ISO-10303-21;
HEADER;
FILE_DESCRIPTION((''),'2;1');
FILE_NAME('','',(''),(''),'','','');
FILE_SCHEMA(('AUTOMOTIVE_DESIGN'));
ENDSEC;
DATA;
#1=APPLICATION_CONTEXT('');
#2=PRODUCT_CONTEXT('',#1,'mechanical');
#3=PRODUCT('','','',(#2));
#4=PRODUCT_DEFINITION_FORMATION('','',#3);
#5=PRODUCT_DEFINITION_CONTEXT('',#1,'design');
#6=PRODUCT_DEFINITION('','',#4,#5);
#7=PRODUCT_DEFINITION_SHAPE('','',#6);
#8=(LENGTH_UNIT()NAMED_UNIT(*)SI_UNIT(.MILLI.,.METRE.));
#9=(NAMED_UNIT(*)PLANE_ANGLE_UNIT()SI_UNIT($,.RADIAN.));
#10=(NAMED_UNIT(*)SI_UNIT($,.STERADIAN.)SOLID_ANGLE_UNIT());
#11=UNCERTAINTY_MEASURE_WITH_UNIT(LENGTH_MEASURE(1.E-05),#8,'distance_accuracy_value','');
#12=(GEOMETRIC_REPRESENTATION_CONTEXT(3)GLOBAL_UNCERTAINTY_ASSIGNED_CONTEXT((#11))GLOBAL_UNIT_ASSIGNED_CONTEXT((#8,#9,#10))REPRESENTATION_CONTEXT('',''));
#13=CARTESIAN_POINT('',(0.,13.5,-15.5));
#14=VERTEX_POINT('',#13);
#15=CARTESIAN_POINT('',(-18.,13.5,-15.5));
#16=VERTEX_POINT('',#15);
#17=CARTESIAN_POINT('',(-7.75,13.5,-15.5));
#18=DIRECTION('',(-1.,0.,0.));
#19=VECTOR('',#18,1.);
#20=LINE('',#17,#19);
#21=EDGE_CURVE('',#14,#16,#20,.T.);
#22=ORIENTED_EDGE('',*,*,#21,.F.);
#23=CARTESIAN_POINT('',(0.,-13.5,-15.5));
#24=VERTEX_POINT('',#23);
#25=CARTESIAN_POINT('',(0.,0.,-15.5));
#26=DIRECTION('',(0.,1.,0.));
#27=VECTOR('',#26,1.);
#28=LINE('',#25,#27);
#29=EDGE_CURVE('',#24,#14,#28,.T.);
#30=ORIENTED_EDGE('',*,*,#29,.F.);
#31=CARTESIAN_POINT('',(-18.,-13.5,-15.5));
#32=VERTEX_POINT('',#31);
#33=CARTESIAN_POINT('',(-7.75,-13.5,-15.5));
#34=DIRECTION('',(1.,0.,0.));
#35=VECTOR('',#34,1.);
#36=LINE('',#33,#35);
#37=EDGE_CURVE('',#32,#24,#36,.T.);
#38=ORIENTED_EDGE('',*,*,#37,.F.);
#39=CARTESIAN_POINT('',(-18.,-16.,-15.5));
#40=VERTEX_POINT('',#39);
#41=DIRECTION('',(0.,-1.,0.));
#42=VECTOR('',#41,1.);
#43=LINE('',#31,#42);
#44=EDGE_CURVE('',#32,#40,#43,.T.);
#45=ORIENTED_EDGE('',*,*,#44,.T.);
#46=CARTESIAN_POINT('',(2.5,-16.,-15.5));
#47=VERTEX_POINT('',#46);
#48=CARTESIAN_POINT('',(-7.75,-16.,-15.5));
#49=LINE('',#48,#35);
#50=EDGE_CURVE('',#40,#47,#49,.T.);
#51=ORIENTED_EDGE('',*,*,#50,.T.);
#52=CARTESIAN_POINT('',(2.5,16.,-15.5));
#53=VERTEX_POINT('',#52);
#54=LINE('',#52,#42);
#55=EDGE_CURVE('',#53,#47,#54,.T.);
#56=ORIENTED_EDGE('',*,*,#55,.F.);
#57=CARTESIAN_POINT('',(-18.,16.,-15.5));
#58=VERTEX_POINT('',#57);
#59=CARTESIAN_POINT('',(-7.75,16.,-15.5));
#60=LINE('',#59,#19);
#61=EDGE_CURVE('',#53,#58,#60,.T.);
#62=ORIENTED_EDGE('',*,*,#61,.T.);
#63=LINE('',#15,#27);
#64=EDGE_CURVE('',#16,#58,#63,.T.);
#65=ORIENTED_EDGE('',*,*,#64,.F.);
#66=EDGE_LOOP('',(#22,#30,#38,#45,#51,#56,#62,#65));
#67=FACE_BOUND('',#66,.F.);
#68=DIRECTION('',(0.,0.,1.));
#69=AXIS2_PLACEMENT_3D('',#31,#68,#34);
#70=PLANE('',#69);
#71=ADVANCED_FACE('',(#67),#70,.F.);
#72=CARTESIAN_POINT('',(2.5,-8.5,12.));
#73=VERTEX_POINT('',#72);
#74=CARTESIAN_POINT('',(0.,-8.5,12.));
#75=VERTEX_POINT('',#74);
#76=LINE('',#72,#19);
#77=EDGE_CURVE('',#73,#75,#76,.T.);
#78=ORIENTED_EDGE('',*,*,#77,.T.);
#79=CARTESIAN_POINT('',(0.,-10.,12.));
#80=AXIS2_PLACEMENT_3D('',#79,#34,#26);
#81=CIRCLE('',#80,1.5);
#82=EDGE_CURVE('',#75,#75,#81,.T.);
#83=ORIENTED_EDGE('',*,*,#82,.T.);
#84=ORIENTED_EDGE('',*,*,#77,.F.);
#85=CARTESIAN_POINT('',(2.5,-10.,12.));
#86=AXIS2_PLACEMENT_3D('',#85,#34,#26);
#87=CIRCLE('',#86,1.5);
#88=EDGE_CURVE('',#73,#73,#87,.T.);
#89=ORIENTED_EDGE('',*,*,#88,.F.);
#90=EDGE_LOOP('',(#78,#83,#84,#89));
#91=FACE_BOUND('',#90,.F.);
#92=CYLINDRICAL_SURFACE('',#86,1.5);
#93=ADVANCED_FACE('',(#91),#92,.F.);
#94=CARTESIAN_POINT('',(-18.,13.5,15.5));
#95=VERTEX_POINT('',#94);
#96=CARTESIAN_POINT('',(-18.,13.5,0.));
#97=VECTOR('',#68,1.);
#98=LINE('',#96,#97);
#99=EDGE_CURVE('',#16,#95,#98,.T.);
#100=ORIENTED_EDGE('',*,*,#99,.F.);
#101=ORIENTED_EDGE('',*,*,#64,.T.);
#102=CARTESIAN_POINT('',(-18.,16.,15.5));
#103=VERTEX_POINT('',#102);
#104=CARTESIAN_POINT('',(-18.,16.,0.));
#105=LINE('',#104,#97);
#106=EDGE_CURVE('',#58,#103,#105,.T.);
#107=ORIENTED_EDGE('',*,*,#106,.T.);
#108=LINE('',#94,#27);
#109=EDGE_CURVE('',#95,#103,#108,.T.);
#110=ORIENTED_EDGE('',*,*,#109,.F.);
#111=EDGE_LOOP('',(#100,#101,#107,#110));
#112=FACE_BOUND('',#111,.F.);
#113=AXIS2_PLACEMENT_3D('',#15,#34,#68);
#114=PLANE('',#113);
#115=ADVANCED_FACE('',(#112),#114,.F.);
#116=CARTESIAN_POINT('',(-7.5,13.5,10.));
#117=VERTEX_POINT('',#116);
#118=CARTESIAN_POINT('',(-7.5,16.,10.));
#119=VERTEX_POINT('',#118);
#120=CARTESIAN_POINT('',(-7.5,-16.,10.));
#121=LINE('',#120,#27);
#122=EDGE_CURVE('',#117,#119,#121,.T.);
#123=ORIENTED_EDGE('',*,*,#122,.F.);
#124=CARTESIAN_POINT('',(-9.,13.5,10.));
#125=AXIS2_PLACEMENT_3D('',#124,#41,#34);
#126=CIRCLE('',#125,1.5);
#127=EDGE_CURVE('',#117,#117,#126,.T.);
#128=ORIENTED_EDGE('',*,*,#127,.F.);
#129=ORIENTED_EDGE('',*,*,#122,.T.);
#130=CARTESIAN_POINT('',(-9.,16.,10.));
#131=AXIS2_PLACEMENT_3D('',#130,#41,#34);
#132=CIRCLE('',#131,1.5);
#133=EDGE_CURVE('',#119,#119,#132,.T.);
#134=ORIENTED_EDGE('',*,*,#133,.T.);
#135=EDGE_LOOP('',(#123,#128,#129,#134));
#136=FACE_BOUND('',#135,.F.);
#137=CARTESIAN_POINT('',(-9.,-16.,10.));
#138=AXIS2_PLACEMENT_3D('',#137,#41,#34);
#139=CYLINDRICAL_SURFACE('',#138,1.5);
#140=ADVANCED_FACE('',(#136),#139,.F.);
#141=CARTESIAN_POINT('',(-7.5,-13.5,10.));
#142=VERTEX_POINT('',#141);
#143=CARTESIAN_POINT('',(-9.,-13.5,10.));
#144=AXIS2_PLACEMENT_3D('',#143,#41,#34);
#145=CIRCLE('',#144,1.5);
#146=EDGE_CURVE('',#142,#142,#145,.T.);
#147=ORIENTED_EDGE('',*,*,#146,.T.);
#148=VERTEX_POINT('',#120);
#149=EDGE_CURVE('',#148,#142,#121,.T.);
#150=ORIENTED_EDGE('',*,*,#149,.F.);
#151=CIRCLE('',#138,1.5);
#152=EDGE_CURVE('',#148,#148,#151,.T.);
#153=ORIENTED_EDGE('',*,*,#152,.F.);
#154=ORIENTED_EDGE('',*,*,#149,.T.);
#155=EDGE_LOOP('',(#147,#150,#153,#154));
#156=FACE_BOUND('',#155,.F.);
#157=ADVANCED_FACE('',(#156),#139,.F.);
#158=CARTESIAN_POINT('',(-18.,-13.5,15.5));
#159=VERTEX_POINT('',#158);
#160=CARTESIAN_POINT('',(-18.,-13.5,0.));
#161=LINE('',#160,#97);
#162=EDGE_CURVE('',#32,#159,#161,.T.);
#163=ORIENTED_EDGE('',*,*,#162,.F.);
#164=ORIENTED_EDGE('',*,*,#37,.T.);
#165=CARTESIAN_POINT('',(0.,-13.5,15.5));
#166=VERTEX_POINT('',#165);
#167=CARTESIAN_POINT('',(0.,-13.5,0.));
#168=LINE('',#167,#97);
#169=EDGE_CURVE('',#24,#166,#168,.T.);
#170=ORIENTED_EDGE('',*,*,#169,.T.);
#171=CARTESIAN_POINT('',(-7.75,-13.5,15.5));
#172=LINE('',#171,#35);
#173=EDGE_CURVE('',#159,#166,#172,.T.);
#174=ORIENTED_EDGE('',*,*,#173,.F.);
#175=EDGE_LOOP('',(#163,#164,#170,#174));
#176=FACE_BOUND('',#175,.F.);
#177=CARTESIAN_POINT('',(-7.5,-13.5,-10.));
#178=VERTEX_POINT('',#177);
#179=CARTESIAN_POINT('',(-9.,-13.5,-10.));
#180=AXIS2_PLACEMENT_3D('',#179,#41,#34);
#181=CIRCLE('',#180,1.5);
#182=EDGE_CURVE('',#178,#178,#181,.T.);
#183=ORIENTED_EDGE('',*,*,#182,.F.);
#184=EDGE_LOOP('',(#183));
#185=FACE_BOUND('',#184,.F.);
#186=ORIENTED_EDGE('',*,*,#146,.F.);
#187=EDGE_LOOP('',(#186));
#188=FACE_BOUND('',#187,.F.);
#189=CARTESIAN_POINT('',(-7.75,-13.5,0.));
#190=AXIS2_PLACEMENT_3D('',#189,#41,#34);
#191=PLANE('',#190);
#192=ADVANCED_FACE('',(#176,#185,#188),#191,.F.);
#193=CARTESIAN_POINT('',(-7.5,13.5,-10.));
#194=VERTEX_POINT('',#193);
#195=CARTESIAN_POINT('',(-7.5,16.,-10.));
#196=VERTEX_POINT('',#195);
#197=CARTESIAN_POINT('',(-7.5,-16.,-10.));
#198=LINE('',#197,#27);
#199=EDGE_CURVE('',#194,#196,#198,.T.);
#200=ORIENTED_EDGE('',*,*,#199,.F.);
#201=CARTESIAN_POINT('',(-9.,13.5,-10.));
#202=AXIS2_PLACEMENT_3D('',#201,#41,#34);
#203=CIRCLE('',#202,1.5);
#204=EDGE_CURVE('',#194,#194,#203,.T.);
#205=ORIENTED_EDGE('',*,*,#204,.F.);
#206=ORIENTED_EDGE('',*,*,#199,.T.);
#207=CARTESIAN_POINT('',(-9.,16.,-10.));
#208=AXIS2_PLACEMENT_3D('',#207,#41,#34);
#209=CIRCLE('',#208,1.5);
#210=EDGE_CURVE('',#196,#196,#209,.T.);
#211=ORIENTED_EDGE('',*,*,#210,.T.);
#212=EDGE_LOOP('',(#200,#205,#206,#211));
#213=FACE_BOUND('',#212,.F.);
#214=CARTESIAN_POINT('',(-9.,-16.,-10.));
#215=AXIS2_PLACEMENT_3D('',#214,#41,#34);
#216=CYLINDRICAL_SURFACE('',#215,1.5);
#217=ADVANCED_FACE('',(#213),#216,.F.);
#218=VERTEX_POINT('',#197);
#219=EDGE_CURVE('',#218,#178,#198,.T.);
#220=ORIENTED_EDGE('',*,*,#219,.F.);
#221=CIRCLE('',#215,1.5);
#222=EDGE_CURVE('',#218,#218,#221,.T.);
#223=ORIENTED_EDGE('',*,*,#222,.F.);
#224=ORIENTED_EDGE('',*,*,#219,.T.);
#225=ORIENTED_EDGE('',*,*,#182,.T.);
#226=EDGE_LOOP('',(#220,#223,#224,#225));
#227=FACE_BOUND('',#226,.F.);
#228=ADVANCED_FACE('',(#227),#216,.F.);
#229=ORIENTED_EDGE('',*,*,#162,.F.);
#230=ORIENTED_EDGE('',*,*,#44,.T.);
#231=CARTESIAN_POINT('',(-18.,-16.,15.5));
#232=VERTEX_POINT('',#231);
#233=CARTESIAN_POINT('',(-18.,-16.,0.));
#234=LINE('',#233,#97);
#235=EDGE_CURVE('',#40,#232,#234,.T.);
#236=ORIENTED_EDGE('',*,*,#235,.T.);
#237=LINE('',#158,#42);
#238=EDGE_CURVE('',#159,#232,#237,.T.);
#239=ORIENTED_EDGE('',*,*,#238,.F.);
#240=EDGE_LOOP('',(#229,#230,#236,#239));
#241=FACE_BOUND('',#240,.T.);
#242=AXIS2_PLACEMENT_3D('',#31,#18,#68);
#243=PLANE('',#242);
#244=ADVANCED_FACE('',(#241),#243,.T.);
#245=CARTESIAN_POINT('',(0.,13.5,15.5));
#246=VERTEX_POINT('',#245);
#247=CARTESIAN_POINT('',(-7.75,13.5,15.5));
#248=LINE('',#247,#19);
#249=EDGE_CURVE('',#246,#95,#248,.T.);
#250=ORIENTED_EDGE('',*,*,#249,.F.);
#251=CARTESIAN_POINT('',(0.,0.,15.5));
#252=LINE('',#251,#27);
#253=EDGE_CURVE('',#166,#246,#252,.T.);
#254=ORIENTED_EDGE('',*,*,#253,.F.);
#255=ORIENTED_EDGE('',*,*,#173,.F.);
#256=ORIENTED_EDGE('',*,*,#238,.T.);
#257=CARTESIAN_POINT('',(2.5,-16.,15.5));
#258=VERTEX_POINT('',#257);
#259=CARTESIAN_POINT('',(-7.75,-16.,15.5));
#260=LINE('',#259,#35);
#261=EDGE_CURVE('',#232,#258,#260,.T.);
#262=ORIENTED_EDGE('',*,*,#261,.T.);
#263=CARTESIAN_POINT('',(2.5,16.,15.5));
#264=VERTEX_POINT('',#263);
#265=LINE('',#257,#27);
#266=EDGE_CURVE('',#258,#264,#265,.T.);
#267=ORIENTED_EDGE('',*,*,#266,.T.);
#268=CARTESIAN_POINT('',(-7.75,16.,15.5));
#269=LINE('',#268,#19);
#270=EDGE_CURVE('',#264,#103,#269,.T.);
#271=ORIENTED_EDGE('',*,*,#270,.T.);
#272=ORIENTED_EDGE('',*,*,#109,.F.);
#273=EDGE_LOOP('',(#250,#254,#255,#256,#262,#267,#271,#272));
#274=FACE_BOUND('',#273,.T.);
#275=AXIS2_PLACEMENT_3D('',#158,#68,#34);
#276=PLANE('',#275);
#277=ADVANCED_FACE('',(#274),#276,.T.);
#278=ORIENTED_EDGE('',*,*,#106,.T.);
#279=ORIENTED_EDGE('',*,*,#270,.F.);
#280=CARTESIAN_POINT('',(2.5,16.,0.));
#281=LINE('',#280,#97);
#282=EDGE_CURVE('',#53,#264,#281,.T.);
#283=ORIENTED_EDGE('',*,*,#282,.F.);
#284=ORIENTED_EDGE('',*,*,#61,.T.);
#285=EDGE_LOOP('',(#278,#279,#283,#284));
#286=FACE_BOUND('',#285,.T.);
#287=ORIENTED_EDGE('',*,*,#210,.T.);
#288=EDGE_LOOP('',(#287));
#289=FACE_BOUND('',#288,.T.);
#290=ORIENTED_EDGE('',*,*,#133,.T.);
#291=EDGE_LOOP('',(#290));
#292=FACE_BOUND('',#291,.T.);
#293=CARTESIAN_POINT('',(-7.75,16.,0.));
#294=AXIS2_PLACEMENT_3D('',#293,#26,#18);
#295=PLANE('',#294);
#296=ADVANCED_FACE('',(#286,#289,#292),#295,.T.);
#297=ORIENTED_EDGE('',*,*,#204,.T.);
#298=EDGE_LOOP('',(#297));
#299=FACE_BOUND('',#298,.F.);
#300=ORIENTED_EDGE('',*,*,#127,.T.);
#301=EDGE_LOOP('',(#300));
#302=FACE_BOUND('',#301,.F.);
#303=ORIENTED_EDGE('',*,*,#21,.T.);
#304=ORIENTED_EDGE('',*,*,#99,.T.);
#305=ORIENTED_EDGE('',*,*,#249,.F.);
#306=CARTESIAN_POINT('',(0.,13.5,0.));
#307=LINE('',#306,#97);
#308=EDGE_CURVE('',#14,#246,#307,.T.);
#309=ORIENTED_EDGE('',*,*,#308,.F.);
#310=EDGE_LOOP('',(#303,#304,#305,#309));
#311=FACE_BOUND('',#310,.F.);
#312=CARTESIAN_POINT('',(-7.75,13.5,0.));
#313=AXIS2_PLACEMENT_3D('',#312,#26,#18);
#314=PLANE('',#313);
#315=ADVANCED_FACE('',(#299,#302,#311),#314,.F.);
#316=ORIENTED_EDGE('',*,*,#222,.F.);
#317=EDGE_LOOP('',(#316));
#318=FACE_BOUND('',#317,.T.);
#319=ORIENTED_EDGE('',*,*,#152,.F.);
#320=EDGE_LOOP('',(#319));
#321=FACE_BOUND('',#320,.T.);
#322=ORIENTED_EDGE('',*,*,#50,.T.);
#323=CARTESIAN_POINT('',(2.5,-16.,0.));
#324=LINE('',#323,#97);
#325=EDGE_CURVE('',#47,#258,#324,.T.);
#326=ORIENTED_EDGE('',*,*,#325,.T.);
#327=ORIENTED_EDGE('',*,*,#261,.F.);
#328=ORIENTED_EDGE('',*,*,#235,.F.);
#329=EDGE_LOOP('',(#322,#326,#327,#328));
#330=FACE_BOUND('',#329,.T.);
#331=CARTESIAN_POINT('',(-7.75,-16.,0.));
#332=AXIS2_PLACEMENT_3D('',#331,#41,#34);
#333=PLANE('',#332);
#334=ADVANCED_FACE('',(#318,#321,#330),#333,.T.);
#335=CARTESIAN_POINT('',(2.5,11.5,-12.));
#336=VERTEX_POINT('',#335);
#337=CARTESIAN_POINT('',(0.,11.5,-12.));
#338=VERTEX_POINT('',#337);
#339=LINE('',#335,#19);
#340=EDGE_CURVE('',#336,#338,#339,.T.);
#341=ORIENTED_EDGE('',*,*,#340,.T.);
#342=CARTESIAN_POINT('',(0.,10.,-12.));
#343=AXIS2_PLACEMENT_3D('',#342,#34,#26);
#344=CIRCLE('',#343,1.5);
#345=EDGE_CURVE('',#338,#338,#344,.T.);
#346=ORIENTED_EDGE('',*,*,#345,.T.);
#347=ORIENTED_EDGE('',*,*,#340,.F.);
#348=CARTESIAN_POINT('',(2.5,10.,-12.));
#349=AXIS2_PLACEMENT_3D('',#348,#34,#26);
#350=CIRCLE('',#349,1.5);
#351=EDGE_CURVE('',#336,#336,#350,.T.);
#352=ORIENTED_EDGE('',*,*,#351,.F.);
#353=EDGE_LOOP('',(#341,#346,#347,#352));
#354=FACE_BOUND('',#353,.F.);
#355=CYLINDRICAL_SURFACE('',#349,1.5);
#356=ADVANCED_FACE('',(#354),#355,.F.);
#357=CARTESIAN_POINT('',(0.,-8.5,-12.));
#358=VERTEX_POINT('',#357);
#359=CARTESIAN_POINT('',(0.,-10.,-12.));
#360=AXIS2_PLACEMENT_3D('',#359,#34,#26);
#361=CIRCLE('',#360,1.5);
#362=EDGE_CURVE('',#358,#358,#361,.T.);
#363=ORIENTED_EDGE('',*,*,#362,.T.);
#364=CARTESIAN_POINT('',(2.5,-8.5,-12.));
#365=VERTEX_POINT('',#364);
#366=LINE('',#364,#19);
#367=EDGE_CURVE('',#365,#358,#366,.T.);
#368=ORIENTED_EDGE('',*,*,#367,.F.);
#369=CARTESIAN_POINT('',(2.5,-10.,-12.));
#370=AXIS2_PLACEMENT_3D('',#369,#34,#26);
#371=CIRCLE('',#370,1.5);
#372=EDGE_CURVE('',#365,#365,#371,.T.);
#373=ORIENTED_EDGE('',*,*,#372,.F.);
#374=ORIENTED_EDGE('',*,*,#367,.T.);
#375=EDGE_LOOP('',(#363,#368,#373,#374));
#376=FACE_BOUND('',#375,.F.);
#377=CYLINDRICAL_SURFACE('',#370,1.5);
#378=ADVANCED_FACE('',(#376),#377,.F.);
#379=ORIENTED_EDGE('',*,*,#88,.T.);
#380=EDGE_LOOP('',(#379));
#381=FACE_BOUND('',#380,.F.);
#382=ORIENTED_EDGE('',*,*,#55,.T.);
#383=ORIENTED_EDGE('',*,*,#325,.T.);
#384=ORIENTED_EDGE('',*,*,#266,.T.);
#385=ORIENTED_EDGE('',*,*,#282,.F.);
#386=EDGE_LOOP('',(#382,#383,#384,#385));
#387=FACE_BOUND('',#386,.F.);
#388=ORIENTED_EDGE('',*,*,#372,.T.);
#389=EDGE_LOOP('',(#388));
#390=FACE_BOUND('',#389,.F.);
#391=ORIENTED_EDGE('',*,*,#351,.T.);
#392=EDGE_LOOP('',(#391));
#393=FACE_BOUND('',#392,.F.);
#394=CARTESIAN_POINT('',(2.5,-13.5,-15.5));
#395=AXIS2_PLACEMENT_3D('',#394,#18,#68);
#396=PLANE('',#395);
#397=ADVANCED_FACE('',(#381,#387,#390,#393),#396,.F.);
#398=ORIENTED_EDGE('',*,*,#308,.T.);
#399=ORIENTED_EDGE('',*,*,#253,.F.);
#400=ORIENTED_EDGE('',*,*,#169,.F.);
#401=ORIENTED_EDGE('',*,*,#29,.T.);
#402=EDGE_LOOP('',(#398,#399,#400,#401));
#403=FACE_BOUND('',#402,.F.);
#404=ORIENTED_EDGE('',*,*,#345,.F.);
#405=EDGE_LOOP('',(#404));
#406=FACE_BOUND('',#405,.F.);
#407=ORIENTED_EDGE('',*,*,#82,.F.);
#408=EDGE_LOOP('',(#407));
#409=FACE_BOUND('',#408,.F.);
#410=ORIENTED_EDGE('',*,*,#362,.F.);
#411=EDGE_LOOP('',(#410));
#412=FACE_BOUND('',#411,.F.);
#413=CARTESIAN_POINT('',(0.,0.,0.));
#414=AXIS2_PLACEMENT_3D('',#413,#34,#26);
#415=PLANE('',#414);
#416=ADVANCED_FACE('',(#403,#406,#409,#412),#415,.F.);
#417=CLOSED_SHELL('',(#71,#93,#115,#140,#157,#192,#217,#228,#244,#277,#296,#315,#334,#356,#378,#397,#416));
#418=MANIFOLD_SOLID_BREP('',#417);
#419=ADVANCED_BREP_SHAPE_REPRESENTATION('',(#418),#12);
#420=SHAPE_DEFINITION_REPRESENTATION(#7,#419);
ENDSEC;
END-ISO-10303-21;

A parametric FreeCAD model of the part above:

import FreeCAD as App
import Part
import Sketcher


def add_polygon(sketch, points):
    """Adds a closed chain of lines whose ends are joined by coincident constraints."""
    first, n = sketch.GeometryCount, len(points)
    for a, b in zip(points, points[1:] + points[:1]):
        sketch.addGeometry(Part.LineSegment(App.Vector(*a, 0), App.Vector(*b, 0)), False)
    for i in range(n):
        sketch.addConstraint(Sketcher.Constraint("Coincident", first + i, 2, first + (i + 1) % n, 1))

doc = App.newDocument("Part")
body = doc.addObject("PartDesign::Body", "Body")

sketch1 = body.newObject("Sketcher::SketchObject", "Sketch")
sketch1.AttachmentSupport = (doc.getObject("YZ_Plane"), [""])
sketch1.MapMode = "FlatFace"
add_polygon(sketch1, [(-13.5, 15.5), (-13.5, -15.5), (13.5, -15.5), (13.5, 15.5)])
sketch1.addConstraint([
    Sketcher.Constraint("Vertical", 0),
    Sketcher.Constraint("Horizontal", 1),
    Sketcher.Constraint("Vertical", 2),
    Sketcher.Constraint("Horizontal", 3),
    Sketcher.Constraint("Symmetric", 0, 2, 2, 2, -1, 1),
    Sketcher.Constraint("DistanceX", 1, 1, 1, 2, 27.0),
    Sketcher.Constraint("DistanceY", 0, 2, 0, 1, 31.0),
])
pad1 = body.newObject("PartDesign::Pad", "Pad")
pad1.Profile = sketch1
pad1.Length = 2.5

sketch2 = body.newObject("Sketcher::SketchObject", "Sketch001")
sketch2.AttachmentSupport = (doc.getObject("XZ_Plane"), [""])
sketch2.MapMode = "FlatFace"
sketch2.AttachmentOffset = App.Placement(App.Vector(0, 0, -13.5), App.Rotation())
add_polygon(sketch2, [(2.5, 15.5), (2.5, -15.5), (-18, -15.5), (-18, 15.5)])
sketch2.addConstraint([
    Sketcher.Constraint("Vertical", 0),
    Sketcher.Constraint("Horizontal", 1),
    Sketcher.Constraint("Vertical", 2),
    Sketcher.Constraint("Horizontal", 3),
    Sketcher.Constraint("DistanceY", 0, 2, 0, 1, 31.0),
    Sketcher.Constraint("DistanceX", 1, 2, 1, 1, 20.5),
    Sketcher.Constraint("DistanceX", 1, 2, -1, 1, 18.0),
    Sketcher.Constraint("DistanceY", 0, 2, -1, 1, 15.5),
])
pad2 = body.newObject("PartDesign::Pad", "Pad001")
pad2.Profile = sketch2
pad2.Length = 2.5
pad2.Reversed = True

sketch3 = body.newObject("Sketcher::SketchObject", "Sketch002")
sketch3.AttachmentSupport = (doc.getObject("XZ_Plane"), [""])
sketch3.MapMode = "FlatFace"
sketch3.AttachmentOffset = App.Placement(App.Vector(0, 0, 13.5), App.Rotation())
add_polygon(sketch3, [(-18, 15.5), (-18, -15.5), (2.5, -15.5), (2.5, 15.5)])
sketch3.addConstraint([
    Sketcher.Constraint("Vertical", 0),
    Sketcher.Constraint("Horizontal", 1),
    Sketcher.Constraint("Vertical", 2),
    Sketcher.Constraint("Horizontal", 3),
    Sketcher.Constraint("DistanceY", 0, 2, 0, 1, 31.0),
    Sketcher.Constraint("DistanceX", 1, 1, 1, 2, 20.5),
    Sketcher.Constraint("DistanceX", 0, 2, -1, 1, 18.0),
    Sketcher.Constraint("DistanceY", 0, 2, -1, 1, 15.5),
])
pad3 = body.newObject("PartDesign::Pad", "Pad002")
pad3.Profile = sketch3
pad3.Length = 2.5

sketch4 = body.newObject("Sketcher::SketchObject", "Sketch003")
sketch4.AttachmentSupport = (doc.getObject("YZ_Plane"), [""])
sketch4.MapMode = "FlatFace"
sketch4.AttachmentOffset = App.Placement(App.Vector(0, 0, 2.5), App.Rotation())
sketch4.addGeometry([
    Part.Circle(App.Vector(-10, -12, 0), App.Vector(0, 0, 1), 1.5),
    Part.Circle(App.Vector(-10, 12, 0), App.Vector(0, 0, 1), 1.5),
    Part.Circle(App.Vector(10, -12, 0), App.Vector(0, 0, 1), 1.5),
], False)
sketch4.addConstraint([
    Sketcher.Constraint("Equal", 0, 1),
    Sketcher.Constraint("Equal", 1, 2),
    Sketcher.Constraint("Symmetric", 1, 3, 2, 3, -1, 1),
    Sketcher.Constraint("Symmetric", 0, 3, 2, 3, -2),
    Sketcher.Constraint("Diameter", 0, 3.0),
    Sketcher.Constraint("DistanceX", 0, 3, -1, 1, 10.0),
    Sketcher.Constraint("DistanceY", 0, 3, -1, 1, 12.0),
])
pocket1 = body.newObject("PartDesign::Pocket", "Pocket")
pocket1.Profile = sketch4
pocket1.Type = "ThroughAll"

sketch5 = body.newObject("Sketcher::SketchObject", "Sketch004")
sketch5.AttachmentSupport = (doc.getObject("XZ_Plane"), [""])
sketch5.MapMode = "FlatFace"
sketch5.AttachmentOffset = App.Placement(App.Vector(0, 0, 16), App.Rotation())
sketch5.addGeometry([
    Part.Circle(App.Vector(-9, 10, 0), App.Vector(0, 0, 1), 1.5),
    Part.Circle(App.Vector(-9, -10, 0), App.Vector(0, 0, 1), 1.5),
], False)
sketch5.addConstraint([
    Sketcher.Constraint("Equal", 0, 1),
    Sketcher.Constraint("Symmetric", 0, 3, 1, 3, -1),
    Sketcher.Constraint("Diameter", 0, 3.0),
    Sketcher.Constraint("DistanceX", 0, 3, -1, 1, 9.0),
    Sketcher.Constraint("DistanceY", -1, 1, 0, 3, 10.0),
])
pocket2 = body.newObject("PartDesign::Pocket", "Pocket001")
pocket2.Profile = sketch5
pocket2.Type = "ThroughAll"

doc.recompute()
